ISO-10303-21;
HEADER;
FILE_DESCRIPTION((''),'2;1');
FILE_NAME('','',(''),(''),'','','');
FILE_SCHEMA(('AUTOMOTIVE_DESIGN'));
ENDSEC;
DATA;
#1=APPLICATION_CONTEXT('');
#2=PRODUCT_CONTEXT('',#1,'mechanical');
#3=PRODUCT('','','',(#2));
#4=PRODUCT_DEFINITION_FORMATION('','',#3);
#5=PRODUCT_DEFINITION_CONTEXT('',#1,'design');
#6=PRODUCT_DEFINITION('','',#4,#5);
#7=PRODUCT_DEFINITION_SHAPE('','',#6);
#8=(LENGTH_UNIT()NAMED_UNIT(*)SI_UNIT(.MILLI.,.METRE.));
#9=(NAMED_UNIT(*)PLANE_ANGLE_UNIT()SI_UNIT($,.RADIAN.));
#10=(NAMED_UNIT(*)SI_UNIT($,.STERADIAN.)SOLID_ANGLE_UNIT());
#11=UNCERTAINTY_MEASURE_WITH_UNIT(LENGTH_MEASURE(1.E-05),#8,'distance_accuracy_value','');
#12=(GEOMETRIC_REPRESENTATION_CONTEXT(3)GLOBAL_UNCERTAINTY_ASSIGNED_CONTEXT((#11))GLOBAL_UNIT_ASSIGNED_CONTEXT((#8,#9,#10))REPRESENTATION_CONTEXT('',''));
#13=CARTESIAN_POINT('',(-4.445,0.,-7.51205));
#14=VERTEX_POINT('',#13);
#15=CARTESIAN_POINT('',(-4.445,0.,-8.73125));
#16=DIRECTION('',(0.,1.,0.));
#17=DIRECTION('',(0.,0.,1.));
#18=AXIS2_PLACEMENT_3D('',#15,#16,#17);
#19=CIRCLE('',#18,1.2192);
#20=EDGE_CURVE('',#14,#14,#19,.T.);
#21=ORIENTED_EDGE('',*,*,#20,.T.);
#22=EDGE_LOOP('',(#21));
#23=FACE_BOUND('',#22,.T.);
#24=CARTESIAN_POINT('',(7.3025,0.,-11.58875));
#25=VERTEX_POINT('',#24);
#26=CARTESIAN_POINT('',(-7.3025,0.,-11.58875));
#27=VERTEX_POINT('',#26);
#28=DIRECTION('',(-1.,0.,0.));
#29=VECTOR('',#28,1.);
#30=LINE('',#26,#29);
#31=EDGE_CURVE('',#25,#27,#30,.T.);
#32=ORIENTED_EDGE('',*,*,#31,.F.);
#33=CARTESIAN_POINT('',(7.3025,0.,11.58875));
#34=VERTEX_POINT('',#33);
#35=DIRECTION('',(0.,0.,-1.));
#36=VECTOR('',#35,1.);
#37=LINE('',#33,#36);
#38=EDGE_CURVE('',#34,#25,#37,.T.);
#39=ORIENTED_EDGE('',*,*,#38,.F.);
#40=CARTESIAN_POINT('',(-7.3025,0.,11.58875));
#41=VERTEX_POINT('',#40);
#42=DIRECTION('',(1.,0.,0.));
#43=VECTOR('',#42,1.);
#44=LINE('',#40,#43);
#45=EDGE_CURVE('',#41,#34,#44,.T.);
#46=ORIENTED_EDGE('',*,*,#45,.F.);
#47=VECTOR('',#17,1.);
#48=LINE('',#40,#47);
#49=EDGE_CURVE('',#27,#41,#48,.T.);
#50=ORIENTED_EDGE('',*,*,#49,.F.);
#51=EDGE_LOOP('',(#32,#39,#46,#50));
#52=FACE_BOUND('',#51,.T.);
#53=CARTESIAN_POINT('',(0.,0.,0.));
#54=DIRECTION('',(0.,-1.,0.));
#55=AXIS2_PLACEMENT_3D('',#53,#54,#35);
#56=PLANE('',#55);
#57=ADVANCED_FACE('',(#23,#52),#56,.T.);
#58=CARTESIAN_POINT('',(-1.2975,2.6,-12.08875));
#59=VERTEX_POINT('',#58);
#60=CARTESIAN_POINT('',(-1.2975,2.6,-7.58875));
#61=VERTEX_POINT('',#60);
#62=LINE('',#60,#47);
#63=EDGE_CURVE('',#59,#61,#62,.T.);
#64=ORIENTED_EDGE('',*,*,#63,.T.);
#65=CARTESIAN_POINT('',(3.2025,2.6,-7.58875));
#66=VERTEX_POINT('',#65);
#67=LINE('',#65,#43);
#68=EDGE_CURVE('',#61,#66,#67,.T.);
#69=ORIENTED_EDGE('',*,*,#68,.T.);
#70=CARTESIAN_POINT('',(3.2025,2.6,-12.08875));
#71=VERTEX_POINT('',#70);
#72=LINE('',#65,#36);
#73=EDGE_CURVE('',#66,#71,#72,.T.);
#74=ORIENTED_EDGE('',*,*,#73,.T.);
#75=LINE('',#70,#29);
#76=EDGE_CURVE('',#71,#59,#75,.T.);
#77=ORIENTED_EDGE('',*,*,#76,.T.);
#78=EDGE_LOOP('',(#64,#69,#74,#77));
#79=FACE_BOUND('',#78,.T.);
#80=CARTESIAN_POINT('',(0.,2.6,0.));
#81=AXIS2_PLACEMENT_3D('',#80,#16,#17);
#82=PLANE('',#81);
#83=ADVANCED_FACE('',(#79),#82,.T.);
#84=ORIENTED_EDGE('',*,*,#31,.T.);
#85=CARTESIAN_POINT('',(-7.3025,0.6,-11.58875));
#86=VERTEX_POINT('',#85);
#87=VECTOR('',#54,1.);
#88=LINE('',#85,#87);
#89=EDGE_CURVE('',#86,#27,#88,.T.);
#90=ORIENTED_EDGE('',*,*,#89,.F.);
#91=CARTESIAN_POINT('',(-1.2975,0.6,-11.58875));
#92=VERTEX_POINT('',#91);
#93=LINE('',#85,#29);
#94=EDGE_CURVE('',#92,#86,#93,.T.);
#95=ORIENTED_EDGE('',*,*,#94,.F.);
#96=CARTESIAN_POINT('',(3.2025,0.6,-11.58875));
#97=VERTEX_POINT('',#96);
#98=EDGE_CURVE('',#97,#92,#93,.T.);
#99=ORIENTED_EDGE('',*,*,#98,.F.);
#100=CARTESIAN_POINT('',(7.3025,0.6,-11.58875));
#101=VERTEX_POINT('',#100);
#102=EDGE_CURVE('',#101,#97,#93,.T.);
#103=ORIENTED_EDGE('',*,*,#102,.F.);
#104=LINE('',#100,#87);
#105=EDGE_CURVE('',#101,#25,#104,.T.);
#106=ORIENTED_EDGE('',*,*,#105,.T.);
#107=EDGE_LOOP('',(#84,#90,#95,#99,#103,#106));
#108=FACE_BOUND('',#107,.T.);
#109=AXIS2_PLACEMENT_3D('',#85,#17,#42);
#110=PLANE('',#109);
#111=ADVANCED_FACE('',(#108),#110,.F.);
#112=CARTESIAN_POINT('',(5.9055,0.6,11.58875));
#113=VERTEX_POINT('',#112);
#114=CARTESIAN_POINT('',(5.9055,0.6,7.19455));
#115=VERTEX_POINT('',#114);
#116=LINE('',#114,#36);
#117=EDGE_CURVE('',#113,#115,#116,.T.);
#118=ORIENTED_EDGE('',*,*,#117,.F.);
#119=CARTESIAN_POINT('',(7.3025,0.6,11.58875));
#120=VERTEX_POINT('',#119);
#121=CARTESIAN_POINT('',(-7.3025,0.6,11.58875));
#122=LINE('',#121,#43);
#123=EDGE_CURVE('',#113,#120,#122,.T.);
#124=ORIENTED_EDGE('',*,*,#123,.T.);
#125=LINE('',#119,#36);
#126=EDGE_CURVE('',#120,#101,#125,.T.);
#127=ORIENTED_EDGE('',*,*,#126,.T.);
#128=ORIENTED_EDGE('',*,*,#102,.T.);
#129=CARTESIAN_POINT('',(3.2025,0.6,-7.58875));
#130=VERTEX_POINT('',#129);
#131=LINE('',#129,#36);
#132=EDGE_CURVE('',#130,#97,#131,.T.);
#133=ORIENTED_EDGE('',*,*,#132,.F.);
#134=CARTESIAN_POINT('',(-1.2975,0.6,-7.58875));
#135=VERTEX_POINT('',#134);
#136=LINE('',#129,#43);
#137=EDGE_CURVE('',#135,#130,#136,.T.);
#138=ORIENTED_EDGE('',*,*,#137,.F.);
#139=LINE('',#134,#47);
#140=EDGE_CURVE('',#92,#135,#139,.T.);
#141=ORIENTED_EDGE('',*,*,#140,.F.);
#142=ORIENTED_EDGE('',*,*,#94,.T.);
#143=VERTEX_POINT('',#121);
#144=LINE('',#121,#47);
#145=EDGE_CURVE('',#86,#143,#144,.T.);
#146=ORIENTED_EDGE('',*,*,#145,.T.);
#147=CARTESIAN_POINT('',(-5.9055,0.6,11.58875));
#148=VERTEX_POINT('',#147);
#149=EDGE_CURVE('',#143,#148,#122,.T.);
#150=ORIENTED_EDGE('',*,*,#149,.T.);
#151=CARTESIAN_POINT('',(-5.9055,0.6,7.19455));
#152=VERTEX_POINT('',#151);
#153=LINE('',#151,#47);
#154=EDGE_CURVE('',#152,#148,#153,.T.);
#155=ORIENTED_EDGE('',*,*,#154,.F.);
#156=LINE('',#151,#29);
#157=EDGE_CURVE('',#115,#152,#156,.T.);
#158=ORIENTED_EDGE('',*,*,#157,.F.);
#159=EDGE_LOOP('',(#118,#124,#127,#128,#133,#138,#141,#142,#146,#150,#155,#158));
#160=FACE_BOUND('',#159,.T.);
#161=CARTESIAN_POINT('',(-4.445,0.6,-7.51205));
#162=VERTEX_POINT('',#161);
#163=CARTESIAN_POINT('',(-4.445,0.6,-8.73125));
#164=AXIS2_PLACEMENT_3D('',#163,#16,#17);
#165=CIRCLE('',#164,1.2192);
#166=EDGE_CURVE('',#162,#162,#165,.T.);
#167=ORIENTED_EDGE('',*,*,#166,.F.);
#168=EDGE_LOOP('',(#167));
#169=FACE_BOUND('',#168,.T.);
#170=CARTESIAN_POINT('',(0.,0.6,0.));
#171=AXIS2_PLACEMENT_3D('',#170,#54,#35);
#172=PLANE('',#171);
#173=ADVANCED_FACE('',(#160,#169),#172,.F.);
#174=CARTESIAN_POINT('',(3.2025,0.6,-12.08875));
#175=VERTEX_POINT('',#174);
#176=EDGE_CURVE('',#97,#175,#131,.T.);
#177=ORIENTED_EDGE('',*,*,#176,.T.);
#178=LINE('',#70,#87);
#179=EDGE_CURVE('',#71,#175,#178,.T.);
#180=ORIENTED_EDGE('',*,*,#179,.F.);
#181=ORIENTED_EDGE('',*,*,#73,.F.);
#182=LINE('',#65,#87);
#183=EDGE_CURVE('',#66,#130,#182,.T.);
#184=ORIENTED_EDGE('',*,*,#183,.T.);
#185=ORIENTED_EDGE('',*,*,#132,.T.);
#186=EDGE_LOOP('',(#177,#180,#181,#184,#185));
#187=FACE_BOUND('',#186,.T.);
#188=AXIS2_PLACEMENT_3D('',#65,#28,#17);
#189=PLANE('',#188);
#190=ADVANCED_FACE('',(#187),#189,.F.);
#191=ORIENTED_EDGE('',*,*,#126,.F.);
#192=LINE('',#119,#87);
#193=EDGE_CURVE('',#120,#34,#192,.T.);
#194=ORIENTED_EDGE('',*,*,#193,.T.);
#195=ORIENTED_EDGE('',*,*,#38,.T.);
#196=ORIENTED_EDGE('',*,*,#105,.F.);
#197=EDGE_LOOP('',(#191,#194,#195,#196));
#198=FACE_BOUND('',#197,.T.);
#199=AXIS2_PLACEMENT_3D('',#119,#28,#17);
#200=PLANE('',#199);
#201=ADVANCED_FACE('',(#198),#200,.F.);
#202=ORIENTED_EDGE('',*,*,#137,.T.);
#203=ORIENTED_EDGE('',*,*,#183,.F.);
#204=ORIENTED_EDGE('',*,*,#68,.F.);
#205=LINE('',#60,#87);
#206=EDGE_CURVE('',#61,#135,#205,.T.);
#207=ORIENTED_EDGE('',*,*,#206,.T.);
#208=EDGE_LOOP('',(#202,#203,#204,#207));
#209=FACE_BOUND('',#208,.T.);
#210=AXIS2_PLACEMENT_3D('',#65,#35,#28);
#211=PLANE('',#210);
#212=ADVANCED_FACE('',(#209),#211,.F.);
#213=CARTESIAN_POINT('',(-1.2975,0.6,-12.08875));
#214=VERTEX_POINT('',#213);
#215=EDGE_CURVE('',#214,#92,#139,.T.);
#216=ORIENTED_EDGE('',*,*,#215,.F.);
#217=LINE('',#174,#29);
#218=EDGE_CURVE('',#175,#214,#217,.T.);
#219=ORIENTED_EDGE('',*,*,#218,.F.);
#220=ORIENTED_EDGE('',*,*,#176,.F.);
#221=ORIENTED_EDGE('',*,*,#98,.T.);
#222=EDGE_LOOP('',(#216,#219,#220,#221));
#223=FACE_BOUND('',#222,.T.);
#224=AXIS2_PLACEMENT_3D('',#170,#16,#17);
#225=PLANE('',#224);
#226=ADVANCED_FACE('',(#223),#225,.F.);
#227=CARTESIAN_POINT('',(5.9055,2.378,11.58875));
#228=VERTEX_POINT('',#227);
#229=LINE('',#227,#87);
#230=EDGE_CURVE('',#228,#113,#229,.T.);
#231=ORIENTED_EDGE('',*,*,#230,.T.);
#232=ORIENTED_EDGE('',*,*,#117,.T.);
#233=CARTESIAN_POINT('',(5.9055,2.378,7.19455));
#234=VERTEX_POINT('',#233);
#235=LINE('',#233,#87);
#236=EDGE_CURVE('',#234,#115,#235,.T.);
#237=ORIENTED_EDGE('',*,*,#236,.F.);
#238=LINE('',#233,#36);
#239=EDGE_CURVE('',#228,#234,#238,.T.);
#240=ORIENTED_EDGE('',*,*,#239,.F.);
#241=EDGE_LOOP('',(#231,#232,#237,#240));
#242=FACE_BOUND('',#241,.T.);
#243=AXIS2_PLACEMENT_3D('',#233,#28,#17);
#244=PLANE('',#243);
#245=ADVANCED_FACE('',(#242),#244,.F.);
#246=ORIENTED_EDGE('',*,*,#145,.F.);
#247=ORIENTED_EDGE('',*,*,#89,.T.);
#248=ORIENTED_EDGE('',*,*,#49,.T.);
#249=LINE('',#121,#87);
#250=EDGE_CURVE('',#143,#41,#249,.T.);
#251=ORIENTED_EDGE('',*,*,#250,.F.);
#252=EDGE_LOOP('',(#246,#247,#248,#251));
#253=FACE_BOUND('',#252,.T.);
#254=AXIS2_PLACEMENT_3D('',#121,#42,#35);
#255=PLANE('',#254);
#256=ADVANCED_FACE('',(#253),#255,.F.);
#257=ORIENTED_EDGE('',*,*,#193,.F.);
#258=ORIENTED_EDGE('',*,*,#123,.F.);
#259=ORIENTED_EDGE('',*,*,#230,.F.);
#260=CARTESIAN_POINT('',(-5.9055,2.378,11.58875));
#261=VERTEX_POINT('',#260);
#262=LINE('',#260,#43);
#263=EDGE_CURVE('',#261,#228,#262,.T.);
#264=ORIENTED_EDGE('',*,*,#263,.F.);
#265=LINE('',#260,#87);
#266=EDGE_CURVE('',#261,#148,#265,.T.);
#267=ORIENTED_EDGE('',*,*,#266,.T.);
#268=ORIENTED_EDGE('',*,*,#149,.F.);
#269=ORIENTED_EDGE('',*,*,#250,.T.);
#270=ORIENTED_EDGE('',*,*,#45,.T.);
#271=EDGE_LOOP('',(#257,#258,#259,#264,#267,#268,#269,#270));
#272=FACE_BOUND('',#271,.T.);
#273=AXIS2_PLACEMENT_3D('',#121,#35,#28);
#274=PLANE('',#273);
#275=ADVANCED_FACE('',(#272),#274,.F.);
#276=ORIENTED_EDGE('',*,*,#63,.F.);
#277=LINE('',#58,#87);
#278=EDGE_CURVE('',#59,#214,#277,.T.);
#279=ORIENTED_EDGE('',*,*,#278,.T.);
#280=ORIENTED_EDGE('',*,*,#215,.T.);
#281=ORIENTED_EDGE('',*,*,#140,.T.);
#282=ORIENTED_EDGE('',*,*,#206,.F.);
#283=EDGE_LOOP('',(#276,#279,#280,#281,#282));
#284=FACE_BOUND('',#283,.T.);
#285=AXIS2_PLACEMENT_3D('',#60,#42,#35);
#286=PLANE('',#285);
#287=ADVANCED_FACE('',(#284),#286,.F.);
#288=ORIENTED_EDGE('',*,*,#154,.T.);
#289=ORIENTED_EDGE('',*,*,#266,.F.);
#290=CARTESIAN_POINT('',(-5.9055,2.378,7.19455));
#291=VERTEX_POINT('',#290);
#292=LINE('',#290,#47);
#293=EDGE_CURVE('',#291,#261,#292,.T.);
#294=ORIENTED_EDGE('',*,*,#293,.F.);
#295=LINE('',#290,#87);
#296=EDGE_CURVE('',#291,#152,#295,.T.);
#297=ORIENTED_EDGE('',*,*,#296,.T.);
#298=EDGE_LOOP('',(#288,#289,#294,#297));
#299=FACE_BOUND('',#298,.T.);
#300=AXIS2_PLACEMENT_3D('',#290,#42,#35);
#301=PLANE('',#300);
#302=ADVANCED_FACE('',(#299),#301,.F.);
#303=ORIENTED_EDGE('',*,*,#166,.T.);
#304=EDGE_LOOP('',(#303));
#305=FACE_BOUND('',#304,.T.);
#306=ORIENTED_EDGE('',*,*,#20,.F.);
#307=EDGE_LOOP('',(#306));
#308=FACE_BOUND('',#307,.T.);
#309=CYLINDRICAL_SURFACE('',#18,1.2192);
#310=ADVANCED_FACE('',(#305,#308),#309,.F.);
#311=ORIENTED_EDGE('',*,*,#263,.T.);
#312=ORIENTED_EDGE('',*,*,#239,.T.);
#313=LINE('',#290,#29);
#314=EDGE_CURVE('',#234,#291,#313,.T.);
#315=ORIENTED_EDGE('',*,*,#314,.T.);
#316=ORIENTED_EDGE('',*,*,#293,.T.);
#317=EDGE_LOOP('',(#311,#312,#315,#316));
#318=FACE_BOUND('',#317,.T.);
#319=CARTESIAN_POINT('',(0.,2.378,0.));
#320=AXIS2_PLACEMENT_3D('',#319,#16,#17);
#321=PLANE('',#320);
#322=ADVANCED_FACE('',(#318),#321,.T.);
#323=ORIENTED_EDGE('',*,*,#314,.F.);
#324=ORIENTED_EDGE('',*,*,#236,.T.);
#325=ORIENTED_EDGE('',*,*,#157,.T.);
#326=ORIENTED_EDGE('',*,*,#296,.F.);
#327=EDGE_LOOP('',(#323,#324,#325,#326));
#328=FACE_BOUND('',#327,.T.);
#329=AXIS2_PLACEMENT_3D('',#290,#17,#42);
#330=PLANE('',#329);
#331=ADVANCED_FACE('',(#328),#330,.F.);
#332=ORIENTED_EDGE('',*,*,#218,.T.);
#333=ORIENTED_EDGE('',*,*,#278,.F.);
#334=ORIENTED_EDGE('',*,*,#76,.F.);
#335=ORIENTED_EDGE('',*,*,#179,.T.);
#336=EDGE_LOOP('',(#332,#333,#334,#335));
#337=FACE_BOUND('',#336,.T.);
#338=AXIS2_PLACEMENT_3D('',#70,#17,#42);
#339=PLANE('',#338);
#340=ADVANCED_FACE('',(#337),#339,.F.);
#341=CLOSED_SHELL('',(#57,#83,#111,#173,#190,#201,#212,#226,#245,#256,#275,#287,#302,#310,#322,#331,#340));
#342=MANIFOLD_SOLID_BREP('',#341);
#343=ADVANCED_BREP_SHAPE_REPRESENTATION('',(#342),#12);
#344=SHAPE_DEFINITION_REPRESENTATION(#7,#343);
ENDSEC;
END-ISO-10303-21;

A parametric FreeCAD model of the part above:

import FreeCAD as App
import Part
import Sketcher
from FreeCAD import Vector
Q = App.Units.Quantity


def add_polygon(sketch, points):
    """Adds a closed chain of lines whose ends are joined by coincident constraints."""
    first, n = sketch.GeometryCount, len(points)
    for a, b in zip(points, points[1:] + points[:1]):
        sketch.addGeometry(Part.LineSegment(App.Vector(*a, 0), App.Vector(*b, 0)), False)
    for i in range(n):
        sketch.addConstraint(Sketcher.Constraint("Coincident", first + i, 2, first + (i + 1) % n, 1))

doc = App.newDocument("Part")
body = doc.addObject("PartDesign::Body", "Body")

# Sketch on XZ plane
sketch1 = body.newObject("Sketcher::SketchObject", "Sketch")
sketch1.AttachmentSupport = (doc.getObject("XZ_Plane"), [""])
sketch1.MapMode = "FlatFace"
add_polygon(sketch1, [(-7, -12), (-7, 12), (7, 12), (7, -12)])  # lines 0-3
sketch1.addConstraint([
    Sketcher.Constraint("Vertical", 0),
    Sketcher.Constraint("Horizontal", 1),
    Sketcher.Constraint("Vertical", 2),
    Sketcher.Constraint("Horizontal", 3),
    Sketcher.Constraint("Symmetric", 0, 2, 2, 2, -1, 1),
    Sketcher.Constraint("DistanceX", 1, 1, 1, 2, Q("0.575 in")),
    Sketcher.Constraint("DistanceY", 0, 1, 0, 2, Q("0.9125 in")),
])
pad1 = body.newObject("PartDesign::Pad", "Pad")
pad1.Profile = sketch1
pad1.Length = 0.6
pad1.Reversed = True

# Sketch on XZ plane
sketch2 = body.newObject("Sketcher::SketchObject", "Sketch001")
sketch2.AttachmentSupport = (doc.getObject("XZ_Plane"), [""])
sketch2.MapMode = "FlatFace"
sketch2.AttachmentOffset = App.Placement(Vector(0, 0, -0.6), App.Rotation())
sketch2.addGeometry(Part.Circle(Vector(-4.4, -8.7, 0), Vector(0, 0, 1), 1.2), False)
sketch2.addConstraint([
    Sketcher.Constraint("Diameter", 0, Q("0.096 in")),
    Sketcher.Constraint("DistanceX", 0, 3, -1, 1, Q("0.175 in")),
    Sketcher.Constraint("DistanceY", 0, 3, -1, 1, Q("0.34375 in")),
])
pocket1 = body.newObject("PartDesign::Pocket", "Pocket")
pocket1.Profile = sketch2
pocket1.Type = "ThroughAll"
pocket1.Reversed = True

# Sketch on XZ plane
sketch3 = body.newObject("Sketcher::SketchObject", "Sketch002")
sketch3.AttachmentSupport = (doc.getObject("XZ_Plane"), [""])
sketch3.MapMode = "FlatFace"
sketch3.AttachmentOffset = App.Placement(Vector(0, 0, -0.6), App.Rotation())
add_polygon(sketch3, [(-5.9, 7.2), (-5.9, 11.6), (5.9, 11.6), (5.9, 7.2)])  # lines 0-3
sketch3.addConstraint([
    Sketcher.Constraint("Vertical", 0),
    Sketcher.Constraint("Horizontal", 1),
    Sketcher.Constraint("Vertical", 2),
    Sketcher.Constraint("Horizontal", 3),
    Sketcher.Constraint("DistanceX", 1, 1, 1, 2, Q("0.465 in")),
    Sketcher.Constraint("DistanceY", 0, 1, 0, 2, Q("0.173 in")),
    Sketcher.Constraint("DistanceX", 0, 2, -1, 1, Q("0.2325 in")),
    Sketcher.Constraint("DistanceY", -1, 1, 0, 2, 11.58875),
])
pad2 = body.newObject("PartDesign::Pad", "Pad001")
pad2.Profile = sketch3
pad2.Length = Q("0.07 in")
pad2.Reversed = True

# Sketch on XZ plane
sketch4 = body.newObject("Sketcher::SketchObject", "Sketch003")
sketch4.AttachmentSupport = (doc.getObject("XZ_Plane"), [""])
sketch4.MapMode = "FlatFace"
sketch4.AttachmentOffset = App.Placement(Vector(0, 0, -0.6), App.Rotation())
add_polygon(sketch4, [(-1.3, -12.1), (-1.3, -7.6), (3.2, -7.6), (3.2, -12.1)])  # lines 0-3
sketch4.addConstraint([
    Sketcher.Constraint("Vertical", 0),
    Sketcher.Constraint("Horizontal", 1),
    Sketcher.Constraint("Vertical", 2),
    Sketcher.Constraint("Horizontal", 3),
    Sketcher.Constraint("Equal", 3, 0),
    Sketcher.Constraint("DistanceX", 1, 1, 1, 2, 4.5),
    Sketcher.Constraint("DistanceX", 0, 2, -1, 1, 1.2975),
    Sketcher.Constraint("DistanceY", 0, 2, -1, 1, 7.58875),
])
pad3 = body.newObject("PartDesign::Pad", "Pad002")
pad3.Profile = sketch4
pad3.Length = 2
pad3.Reversed = True

doc.recompute()
